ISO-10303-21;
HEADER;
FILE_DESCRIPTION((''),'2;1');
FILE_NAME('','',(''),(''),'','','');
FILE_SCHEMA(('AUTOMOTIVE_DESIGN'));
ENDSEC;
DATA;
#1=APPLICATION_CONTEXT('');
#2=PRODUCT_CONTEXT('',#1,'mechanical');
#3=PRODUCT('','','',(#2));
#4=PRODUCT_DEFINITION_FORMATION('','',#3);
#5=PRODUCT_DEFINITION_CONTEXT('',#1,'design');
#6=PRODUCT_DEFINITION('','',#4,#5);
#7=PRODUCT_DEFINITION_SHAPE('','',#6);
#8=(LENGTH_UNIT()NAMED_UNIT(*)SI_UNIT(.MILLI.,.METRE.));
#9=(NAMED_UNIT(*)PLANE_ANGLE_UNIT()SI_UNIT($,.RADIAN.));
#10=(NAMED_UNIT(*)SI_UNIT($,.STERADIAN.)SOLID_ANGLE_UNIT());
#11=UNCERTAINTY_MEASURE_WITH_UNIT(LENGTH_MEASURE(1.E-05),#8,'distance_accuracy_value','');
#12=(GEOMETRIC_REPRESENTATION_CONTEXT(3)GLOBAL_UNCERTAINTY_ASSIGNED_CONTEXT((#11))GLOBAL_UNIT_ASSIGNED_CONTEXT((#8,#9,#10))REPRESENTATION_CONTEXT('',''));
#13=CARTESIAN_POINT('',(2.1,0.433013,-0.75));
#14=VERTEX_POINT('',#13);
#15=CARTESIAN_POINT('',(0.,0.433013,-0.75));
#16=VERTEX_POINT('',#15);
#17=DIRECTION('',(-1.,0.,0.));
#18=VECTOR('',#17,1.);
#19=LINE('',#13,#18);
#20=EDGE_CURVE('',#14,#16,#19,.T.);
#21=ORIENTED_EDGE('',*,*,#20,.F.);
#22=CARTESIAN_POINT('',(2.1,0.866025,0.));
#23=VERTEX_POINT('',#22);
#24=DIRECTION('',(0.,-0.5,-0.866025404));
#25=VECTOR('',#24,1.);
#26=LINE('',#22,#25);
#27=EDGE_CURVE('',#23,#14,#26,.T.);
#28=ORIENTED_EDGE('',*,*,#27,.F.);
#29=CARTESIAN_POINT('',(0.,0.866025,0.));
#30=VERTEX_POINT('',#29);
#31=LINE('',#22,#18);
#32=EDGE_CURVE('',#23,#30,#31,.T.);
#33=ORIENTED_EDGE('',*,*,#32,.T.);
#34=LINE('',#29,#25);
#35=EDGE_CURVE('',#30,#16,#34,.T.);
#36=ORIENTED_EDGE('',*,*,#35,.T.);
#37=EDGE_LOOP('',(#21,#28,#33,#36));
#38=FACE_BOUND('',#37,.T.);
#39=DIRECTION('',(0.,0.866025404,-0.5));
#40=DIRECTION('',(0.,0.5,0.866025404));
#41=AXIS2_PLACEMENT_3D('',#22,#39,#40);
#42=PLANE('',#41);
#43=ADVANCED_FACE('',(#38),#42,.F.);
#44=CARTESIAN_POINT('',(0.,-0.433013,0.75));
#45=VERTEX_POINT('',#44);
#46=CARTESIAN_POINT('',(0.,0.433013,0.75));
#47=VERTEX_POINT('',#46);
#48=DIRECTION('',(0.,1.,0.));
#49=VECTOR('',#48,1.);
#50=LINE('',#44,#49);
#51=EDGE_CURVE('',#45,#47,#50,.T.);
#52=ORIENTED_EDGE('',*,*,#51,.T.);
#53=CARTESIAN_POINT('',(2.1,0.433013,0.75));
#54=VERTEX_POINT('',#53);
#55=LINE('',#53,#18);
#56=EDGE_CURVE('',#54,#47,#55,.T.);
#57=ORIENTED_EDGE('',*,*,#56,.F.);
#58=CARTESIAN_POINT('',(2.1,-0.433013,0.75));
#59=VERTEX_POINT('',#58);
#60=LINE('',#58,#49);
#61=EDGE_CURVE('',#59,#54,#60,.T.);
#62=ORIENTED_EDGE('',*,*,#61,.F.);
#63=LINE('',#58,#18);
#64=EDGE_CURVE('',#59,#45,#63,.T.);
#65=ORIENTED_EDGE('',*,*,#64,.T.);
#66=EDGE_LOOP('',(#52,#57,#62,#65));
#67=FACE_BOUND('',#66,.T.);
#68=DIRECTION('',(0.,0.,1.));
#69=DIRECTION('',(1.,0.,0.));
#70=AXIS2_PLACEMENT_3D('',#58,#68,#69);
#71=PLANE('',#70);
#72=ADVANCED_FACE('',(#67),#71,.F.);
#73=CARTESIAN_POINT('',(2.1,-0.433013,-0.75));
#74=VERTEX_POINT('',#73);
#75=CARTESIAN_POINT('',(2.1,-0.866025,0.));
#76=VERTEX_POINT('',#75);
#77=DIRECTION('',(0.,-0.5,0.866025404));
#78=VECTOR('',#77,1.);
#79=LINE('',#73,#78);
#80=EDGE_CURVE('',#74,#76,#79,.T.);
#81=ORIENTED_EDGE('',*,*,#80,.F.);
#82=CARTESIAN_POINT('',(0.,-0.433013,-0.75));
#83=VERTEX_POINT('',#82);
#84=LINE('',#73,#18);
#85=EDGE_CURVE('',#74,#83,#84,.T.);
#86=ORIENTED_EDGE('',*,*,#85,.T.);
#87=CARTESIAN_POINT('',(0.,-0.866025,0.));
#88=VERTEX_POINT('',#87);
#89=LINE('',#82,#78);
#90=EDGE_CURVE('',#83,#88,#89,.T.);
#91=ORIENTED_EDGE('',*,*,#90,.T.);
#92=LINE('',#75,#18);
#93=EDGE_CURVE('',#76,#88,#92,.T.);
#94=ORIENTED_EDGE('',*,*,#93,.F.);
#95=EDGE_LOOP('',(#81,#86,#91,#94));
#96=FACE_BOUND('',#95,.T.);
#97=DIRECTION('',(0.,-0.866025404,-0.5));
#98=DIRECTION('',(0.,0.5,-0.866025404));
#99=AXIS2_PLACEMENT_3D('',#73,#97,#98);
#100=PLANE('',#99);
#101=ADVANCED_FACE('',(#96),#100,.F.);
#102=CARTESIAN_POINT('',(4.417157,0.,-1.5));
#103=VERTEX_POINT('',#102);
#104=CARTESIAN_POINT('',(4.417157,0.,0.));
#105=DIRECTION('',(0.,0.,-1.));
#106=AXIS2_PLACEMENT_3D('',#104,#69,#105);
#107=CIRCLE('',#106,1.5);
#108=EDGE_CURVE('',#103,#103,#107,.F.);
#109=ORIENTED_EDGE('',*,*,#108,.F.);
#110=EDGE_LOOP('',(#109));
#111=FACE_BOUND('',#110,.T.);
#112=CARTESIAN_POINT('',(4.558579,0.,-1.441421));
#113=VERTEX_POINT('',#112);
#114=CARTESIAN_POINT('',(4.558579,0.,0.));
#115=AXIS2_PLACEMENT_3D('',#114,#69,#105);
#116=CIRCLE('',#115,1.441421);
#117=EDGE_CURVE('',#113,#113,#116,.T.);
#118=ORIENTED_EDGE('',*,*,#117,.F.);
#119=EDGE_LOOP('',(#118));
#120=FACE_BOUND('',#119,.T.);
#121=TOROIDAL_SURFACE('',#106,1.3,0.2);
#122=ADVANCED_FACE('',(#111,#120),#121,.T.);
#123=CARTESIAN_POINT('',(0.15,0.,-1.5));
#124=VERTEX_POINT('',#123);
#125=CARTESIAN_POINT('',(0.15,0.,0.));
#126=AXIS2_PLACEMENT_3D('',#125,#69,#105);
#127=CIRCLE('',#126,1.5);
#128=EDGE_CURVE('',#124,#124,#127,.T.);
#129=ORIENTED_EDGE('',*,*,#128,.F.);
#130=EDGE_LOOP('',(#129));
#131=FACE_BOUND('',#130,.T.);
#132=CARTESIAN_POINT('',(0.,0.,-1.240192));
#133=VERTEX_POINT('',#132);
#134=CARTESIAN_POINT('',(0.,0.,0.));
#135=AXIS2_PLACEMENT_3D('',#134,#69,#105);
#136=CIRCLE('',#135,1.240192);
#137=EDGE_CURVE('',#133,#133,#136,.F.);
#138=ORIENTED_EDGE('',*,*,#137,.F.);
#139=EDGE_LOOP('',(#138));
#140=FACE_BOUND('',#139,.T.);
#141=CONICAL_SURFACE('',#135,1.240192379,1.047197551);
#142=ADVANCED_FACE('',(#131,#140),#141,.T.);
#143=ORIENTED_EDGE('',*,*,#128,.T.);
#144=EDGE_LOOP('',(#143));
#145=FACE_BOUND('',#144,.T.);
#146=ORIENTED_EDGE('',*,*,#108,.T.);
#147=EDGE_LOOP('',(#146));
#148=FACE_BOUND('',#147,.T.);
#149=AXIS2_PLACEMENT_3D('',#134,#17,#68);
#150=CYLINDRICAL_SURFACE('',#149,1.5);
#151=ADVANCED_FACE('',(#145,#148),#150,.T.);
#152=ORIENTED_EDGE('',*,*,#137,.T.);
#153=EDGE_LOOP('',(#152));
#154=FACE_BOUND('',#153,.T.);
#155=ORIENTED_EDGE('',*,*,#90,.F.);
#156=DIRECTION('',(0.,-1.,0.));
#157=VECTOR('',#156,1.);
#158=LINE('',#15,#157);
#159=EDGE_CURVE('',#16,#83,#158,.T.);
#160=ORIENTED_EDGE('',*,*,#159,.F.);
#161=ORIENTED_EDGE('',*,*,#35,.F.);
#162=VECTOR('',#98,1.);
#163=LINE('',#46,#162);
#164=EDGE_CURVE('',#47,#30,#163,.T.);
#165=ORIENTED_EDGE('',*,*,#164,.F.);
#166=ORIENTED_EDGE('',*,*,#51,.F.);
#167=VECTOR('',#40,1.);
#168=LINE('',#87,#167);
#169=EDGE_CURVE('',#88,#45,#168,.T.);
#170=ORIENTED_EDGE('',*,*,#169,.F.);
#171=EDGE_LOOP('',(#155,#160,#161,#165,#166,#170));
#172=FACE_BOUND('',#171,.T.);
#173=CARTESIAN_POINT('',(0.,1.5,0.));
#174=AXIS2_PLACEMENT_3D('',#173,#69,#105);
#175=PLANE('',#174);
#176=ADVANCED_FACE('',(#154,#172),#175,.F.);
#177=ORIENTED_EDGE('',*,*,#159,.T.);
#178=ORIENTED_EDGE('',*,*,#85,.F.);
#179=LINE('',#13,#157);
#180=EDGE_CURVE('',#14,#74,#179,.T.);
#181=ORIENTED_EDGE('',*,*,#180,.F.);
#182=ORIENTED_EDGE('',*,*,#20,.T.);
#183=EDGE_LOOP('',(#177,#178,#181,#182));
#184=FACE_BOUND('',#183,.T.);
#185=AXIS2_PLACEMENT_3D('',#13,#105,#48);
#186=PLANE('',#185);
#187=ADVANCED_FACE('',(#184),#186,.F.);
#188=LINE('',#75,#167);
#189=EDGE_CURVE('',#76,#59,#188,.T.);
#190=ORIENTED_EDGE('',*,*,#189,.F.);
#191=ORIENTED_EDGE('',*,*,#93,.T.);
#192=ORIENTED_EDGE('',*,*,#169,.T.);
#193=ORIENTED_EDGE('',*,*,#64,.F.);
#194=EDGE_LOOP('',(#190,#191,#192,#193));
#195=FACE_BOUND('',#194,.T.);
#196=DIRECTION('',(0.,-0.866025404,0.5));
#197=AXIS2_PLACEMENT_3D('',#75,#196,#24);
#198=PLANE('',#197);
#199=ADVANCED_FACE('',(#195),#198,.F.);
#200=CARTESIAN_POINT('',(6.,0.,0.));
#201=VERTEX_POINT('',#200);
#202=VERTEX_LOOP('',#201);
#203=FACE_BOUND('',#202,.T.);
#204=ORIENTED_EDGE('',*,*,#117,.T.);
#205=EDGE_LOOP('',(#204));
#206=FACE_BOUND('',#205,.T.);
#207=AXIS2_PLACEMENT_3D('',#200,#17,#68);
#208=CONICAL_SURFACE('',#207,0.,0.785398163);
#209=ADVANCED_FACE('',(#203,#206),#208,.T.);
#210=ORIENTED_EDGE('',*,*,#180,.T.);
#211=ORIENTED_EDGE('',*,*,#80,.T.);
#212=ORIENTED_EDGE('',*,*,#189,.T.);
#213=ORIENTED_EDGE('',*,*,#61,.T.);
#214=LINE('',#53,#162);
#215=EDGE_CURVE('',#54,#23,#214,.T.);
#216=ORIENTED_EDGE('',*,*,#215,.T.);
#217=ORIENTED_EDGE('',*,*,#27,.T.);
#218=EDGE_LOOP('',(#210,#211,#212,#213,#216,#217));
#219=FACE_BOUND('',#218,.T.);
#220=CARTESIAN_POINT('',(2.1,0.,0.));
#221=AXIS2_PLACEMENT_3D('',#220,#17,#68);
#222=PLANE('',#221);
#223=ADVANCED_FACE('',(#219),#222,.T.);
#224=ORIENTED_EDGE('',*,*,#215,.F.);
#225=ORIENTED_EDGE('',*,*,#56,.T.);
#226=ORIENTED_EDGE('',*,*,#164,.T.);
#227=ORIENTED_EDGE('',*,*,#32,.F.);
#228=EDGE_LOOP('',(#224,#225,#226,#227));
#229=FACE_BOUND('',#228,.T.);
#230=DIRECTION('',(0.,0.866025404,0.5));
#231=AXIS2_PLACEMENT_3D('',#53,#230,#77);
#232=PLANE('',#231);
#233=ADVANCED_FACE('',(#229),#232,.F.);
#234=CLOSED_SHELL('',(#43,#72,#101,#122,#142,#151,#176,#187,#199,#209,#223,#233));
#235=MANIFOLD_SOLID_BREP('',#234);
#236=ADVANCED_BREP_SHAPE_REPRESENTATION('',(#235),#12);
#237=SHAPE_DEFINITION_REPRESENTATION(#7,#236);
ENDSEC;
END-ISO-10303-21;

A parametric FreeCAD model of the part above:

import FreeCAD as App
import Part
import Sketcher
from FreeCAD import Vector
Q = App.Units.Quantity


def edges_at(feature, points):
    """Names of the edges that pass closest to the given points."""
    edges = feature.Shape.Edges
    near = lambda p: min(range(len(edges)), key=lambda i: edges[i].distToShape(Part.Vertex(*p))[0])
    return sorted({f"Edge{near(p) + 1}" for p in points})

doc = App.newDocument("Part")
body = doc.addObject("PartDesign::Body", "Body")

sketch1 = body.newObject("Sketcher::SketchObject", "Sketch")
sketch1.AttachmentSupport = (doc.getObject("XY_Plane"), [""])
sketch1.MapMode = "FlatFace"
sketch1.addGeometry([
    Part.LineSegment(Vector(0, 1.5, 0), Vector(0, 0, 0)),
    Part.LineSegment(Vector(0, 0, 0), Vector(6, 0, 0)),
    Part.LineSegment(Vector(6, 0, 0), Vector(4.5, 1.5, 0)),
    Part.LineSegment(Vector(4.5, 1.5, 0), Vector(0, 1.5, 0)),
], False)
sketch1.addConstraint([
    Sketcher.Constraint("Coincident", 0, 2, 1, 1),
    Sketcher.Constraint("Coincident", 1, 2, 2, 1),
    Sketcher.Constraint("Coincident", 2, 2, 3, 1),
    Sketcher.Constraint("Coincident", 3, 2, 0, 1),
    Sketcher.Constraint("Vertical", 0),
    Sketcher.Constraint("Horizontal", 1),
    Sketcher.Constraint("Horizontal", 3),
    Sketcher.Constraint("Coincident", 0, 2, -1, 1),
    Sketcher.Constraint("DistanceX", 1, 1, 1, 2, 6.0),
    Sketcher.Constraint("Angle", 2, Q("135 deg")),
    Sketcher.Constraint("DistanceX", 3, 2, 3, 1, 4.5),
])
revolution = body.newObject("PartDesign::Revolution", "Revolution")
revolution.Profile = sketch1
revolution.ReferenceAxis = (sketch1, ["H_Axis"])
revolution.Angle = 360

sketch2 = body.newObject("Sketcher::SketchObject", "Sketch001")
sketch2.AttachmentSupport = (doc.getObject("YZ_Plane"), [""])
sketch2.MapMode = "FlatFace"
sketch2.addGeometry([
    Part.LineSegment(Vector(-0.866025, 0, 0), Vector(-0.433013, 0.75, 0)),
    Part.LineSegment(Vector(-0.433013, 0.75, 0), Vector(0.433013, 0.75, 0)),
    Part.LineSegment(Vector(0.433013, 0.75, 0), Vector(0.866025, 0, 0)),
    Part.LineSegment(Vector(0.866025, 0, 0), Vector(0.433013, -0.75, 0)),
    Part.LineSegment(Vector(0.433013, -0.75, 0), Vector(-0.433013, -0.75, 0)),
    Part.LineSegment(Vector(-0.433013, -0.75, 0), Vector(-0.866025, 0, 0)),
], False)
sketch2.addConstraint([
    Sketcher.Constraint("Coincident", 0, 2, 1, 1),
    Sketcher.Constraint("Coincident", 1, 2, 2, 1),
    Sketcher.Constraint("Coincident", 2, 2, 3, 1),
    Sketcher.Constraint("Coincident", 3, 2, 4, 1),
    Sketcher.Constraint("Coincident", 4, 2, 5, 1),
    Sketcher.Constraint("Coincident", 5, 2, 0, 1),
    Sketcher.Constraint("Horizontal", 1),
    Sketcher.Constraint("Horizontal", 4),
    Sketcher.Constraint("Symmetric", 0, 2, 3, 2, -1, 1),
    Sketcher.Constraint("Symmetric", 2, 2, 5, 2, -1, 1),
    Sketcher.Constraint("PointOnObject", 2, 2, -1),
    Sketcher.Constraint("Parallel", 2, 5),
    Sketcher.Constraint("Vertical", 1, 2, 3, 2),
    Sketcher.Constraint("Angle", 0, Q("60 deg")),
    Sketcher.Constraint("DistanceY", 3, 2, 1, 2, 1.5),
    Sketcher.Constraint("DistanceX", 1, 1, 1, 2, 0.866025),
])
pocket1 = body.newObject("PartDesign::Pocket", "Pocket")
pocket1.Profile = sketch2
pocket1.Length = 2.1
pocket1.Reversed = True
doc.recompute()

chamfer = body.newObject("PartDesign::Chamfer", "Chamfer")
chamfer.Base = (pocket1, edges_at(pocket1, [(0, 0, -1.5)]))
chamfer.ChamferType = "Two distances"
chamfer.Size = 0.15
chamfer.Size2 = 0.259808
chamfer.FlipDirection = True
doc.recompute()

fillet = body.newObject("PartDesign::Fillet", "Fillet")
fillet.Base = (chamfer, edges_at(chamfer, [(4.5, 0, -1.5)]))
fillet.Radius = 0.2

doc.recompute()
